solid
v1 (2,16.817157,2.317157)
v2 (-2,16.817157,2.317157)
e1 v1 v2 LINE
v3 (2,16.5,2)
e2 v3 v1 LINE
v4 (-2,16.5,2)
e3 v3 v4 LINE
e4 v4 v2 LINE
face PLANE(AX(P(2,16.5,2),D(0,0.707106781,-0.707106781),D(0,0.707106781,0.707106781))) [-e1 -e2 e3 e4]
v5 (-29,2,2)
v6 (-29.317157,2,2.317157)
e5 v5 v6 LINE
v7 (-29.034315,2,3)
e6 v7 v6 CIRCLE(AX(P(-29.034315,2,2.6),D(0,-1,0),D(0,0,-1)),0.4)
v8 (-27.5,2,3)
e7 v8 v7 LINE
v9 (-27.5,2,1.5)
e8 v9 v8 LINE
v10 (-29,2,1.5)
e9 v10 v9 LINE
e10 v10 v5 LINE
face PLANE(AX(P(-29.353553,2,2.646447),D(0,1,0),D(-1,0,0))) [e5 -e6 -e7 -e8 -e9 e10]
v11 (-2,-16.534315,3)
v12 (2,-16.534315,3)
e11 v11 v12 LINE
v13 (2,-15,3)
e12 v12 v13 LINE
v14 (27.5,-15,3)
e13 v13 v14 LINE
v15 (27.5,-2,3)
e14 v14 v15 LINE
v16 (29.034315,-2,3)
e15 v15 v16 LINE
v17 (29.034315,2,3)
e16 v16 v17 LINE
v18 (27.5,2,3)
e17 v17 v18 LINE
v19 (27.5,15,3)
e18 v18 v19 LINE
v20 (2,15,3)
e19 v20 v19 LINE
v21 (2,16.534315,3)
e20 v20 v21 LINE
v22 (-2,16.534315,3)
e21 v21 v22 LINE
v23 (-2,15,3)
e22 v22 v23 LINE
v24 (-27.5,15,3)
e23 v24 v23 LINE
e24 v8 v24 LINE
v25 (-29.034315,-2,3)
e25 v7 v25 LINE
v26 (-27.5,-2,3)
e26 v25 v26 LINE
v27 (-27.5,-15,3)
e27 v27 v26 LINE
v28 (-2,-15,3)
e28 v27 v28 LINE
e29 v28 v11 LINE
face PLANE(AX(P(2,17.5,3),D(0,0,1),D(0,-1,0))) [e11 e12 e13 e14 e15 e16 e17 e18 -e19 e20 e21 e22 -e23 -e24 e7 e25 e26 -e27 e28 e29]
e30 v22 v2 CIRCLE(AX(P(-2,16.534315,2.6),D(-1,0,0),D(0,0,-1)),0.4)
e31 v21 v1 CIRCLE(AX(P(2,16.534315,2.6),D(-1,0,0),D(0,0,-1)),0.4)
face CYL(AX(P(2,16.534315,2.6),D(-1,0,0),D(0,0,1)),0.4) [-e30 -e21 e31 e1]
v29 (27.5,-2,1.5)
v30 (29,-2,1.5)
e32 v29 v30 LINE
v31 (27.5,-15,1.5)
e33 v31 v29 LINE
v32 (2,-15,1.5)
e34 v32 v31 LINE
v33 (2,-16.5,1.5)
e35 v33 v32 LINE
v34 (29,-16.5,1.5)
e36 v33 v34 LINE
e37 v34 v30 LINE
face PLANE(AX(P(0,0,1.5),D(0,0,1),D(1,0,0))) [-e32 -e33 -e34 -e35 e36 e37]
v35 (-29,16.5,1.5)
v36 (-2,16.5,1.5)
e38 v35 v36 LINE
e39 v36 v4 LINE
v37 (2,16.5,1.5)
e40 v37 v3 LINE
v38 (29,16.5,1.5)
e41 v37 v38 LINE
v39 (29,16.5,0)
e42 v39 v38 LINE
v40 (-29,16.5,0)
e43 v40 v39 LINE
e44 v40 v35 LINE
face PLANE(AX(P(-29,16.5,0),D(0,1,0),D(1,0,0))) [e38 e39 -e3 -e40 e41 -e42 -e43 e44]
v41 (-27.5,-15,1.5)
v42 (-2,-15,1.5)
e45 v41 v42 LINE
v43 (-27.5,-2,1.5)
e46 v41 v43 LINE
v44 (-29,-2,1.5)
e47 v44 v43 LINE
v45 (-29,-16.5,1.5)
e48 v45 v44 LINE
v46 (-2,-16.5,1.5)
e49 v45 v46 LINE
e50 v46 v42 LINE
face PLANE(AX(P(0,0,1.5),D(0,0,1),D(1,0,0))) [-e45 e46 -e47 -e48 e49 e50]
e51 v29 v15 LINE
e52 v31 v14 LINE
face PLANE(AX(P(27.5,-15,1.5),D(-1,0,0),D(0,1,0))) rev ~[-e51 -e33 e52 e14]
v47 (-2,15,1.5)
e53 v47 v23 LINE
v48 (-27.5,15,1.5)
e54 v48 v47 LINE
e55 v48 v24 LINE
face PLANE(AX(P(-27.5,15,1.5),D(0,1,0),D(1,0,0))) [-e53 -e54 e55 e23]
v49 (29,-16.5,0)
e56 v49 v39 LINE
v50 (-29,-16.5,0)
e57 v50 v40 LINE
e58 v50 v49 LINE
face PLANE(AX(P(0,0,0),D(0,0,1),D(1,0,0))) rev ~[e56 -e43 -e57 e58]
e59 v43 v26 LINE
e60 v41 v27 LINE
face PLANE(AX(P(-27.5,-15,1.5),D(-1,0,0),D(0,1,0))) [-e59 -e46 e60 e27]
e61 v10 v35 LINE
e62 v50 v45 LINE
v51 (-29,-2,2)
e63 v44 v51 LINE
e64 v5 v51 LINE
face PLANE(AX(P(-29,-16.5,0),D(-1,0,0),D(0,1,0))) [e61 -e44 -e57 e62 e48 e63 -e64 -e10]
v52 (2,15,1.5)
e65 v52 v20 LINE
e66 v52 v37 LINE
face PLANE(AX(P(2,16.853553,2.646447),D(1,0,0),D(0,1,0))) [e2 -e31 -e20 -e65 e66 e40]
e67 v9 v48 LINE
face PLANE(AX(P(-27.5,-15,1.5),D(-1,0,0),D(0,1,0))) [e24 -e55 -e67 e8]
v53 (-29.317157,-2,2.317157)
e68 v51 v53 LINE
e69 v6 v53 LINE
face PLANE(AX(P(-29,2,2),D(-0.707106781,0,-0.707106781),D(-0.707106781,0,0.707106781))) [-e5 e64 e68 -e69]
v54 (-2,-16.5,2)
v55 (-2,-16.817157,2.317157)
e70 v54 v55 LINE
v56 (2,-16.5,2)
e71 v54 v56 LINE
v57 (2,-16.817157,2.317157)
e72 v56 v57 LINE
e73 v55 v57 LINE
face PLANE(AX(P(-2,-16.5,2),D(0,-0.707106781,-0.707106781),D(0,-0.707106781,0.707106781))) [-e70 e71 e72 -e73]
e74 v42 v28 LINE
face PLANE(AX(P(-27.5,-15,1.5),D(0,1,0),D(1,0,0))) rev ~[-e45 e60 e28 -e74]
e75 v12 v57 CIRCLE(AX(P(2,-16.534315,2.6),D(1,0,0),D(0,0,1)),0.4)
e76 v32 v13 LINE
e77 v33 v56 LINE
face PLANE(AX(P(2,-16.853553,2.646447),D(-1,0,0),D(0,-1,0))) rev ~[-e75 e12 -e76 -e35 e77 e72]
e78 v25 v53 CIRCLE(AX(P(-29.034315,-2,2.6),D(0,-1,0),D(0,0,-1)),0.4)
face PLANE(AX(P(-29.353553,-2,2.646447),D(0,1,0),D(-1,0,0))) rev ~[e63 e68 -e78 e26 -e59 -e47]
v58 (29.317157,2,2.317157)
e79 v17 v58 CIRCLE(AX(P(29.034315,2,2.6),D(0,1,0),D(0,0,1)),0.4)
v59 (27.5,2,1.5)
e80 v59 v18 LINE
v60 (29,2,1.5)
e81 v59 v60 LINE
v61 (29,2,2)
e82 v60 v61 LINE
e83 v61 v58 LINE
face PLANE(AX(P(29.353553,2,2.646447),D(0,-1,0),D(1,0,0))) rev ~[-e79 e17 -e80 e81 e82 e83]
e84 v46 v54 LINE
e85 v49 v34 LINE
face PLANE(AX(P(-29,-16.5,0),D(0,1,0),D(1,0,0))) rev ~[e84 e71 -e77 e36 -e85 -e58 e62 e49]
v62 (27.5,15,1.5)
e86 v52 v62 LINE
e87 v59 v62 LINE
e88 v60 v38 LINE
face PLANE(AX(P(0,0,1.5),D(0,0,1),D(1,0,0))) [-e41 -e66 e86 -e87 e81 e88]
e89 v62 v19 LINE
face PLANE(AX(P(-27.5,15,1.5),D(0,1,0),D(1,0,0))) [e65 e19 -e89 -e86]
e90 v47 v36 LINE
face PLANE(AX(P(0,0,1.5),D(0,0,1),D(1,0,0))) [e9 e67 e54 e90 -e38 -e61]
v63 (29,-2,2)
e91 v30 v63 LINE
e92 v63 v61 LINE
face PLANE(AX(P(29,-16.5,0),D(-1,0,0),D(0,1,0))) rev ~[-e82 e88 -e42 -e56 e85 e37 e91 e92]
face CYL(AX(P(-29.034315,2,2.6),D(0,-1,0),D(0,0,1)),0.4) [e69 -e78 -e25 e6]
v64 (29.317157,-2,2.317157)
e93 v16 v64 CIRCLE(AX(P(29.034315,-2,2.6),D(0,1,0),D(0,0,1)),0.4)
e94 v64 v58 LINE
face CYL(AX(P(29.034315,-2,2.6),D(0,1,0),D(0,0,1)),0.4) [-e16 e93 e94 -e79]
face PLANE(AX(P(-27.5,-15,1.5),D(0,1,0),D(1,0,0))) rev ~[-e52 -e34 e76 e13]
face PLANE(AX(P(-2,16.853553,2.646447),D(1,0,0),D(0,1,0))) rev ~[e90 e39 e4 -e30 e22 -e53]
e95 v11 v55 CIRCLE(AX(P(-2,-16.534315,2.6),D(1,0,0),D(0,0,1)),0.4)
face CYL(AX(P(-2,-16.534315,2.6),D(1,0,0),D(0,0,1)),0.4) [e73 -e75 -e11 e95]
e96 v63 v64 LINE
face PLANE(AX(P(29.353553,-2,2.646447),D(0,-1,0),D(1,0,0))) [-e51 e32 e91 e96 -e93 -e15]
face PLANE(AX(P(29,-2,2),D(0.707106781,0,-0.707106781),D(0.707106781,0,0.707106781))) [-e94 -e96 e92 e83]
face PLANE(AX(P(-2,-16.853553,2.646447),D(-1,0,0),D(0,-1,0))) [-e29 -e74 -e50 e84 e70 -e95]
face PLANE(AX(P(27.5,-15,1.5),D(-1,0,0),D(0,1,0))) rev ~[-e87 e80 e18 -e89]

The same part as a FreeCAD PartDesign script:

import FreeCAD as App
import Part
import Sketcher

V = App.Vector
Q = App.Units.Quantity


def edges_at(feature, points):
    """Names of the edges that pass closest to the given points."""
    edges = feature.Shape.Edges
    near = lambda p: min(range(len(edges)), key=lambda i: edges[i].distToShape(Part.Vertex(*p))[0])
    return sorted({f"Edge{near(p) + 1}" for p in points})


def add_polygon(sketch, points):
    """Adds a closed chain of lines whose ends are joined by coincident constraints."""
    first, n = sketch.GeometryCount, len(points)
    for a, b in zip(points, points[1:] + points[:1]):
        sketch.addGeometry(Part.LineSegment(App.Vector(*a, 0), App.Vector(*b, 0)), False)
    for i in range(n):
        sketch.addConstraint(Sketcher.Constraint("Coincident", first + i, 2, first + (i + 1) % n, 1))

doc = App.newDocument("Part")
body = doc.addObject("PartDesign::Body", "Body")

sketch1 = body.newObject("Sketcher::SketchObject", "Sketch")
sketch1.AttachmentSupport = (doc.getObject("XY_Plane"), [""])
sketch1.MapMode = "FlatFace"
add_polygon(sketch1, [(-29, 16.5), (-29, -16.5), (29, -16.5), (29, 16.5)])
sketch1.addConstraint(Sketcher.Constraint("Vertical", 0))
sketch1.addConstraint(Sketcher.Constraint("Horizontal", 1))
sketch1.addConstraint(Sketcher.Constraint("Vertical", 2))
sketch1.addConstraint(Sketcher.Constraint("Horizontal", 3))
sketch1.addConstraint(Sketcher.Constraint("Symmetric", 0, 2, 2, 2, -1, 1))
sketch1.addConstraint(Sketcher.Constraint("DistanceX", 1, 1, 1, 2, Q("58 mm")))
sketch1.addConstraint(Sketcher.Constraint("DistanceY", 0, 2, 0, 1, Q("33 mm")))
pad1 = body.newObject("PartDesign::Pad", "Pad")
pad1.Profile = sketch1
pad1.Length = 1.5

sketch2 = body.newObject("Sketcher::SketchObject", "Sketch001")
sketch2.AttachmentSupport = (doc.getObject("XY_Plane"), [""])
sketch2.MapMode = "FlatFace"
sketch2.AttachmentOffset = App.Placement(V(0, 0, 1.5), App.Rotation())
add_polygon(sketch2, [(-27.5, 15), (-27.5, -15), (27.5, -15), (27.5, 15)])
sketch2.addConstraint(Sketcher.Constraint("Vertical", 0))
sketch2.addConstraint(Sketcher.Constraint("Horizontal", 1))
sketch2.addConstraint(Sketcher.Constraint("Vertical", 2))
sketch2.addConstraint(Sketcher.Constraint("Horizontal", 3))
sketch2.addConstraint(Sketcher.Constraint("Symmetric", 0, 2, 2, 2, -1, 1))
sketch2.addConstraint(Sketcher.Constraint("DistanceX", 1, 1, 1, 2, Q("55 mm")))
sketch2.addConstraint(Sketcher.Constraint("DistanceY", 0, 2, 0, 1, Q("30 mm")))
pad2 = body.newObject("PartDesign::Pad", "Pad001")
pad2.Profile = sketch2
pad2.Length = 1.5

sketch3 = body.newObject("Sketcher::SketchObject", "Sketch002")
sketch3.AttachmentSupport = (doc.getObject("XY_Plane"), [""])
sketch3.MapMode = "FlatFace"
sketch3.AttachmentOffset = App.Placement(V(0, 0, 1.5), App.Rotation())
add_polygon(sketch3, [(-29, 2), (-29, -2), (-27.5, -2), (-27.5, 2)])
add_polygon(sketch3, [(-2, 16.5), (-2, 15), (2, 15), (2, 16.5)])
add_polygon(sketch3, [(27.5, 2), (27.5, -2), (29, -2), (29, 2)])
add_polygon(sketch3, [(-2, -15), (-2, -16.5), (2, -16.5), (2, -15)])
sketch3.addConstraint(Sketcher.Constraint("Vertical", 0))
sketch3.addConstraint(Sketcher.Constraint("Horizontal", 1))
sketch3.addConstraint(Sketcher.Constraint("Vertical", 2))
sketch3.addConstraint(Sketcher.Constraint("Horizontal", 3))
sketch3.addConstraint(Sketcher.Constraint("Vertical", 4))
sketch3.addConstraint(Sketcher.Constraint("Horizontal", 5))
sketch3.addConstraint(Sketcher.Constraint("Vertical", 6))
sketch3.addConstraint(Sketcher.Constraint("Horizontal", 7))
sketch3.addConstraint(Sketcher.Constraint("Vertical", 8))
sketch3.addConstraint(Sketcher.Constraint("Horizontal", 9))
sketch3.addConstraint(Sketcher.Constraint("Vertical", 10))
sketch3.addConstraint(Sketcher.Constraint("Horizontal", 11))
sketch3.addConstraint(Sketcher.Constraint("Vertical", 12))
sketch3.addConstraint(Sketcher.Constraint("Horizontal", 13))
sketch3.addConstraint(Sketcher.Constraint("Vertical", 14))
sketch3.addConstraint(Sketcher.Constraint("Horizontal", 15))
sketch3.addConstraint(Sketcher.Constraint("Symmetric", 2, 2, 8, 2, -1, 1))
sketch3.addConstraint(Sketcher.Constraint("Symmetric", 0, 2, 10, 2, -1, 1))
sketch3.addConstraint(Sketcher.Constraint("Symmetric", 6, 2, 12, 2, -1, 1))
sketch3.addConstraint(Sketcher.Constraint("Symmetric", 4, 2, 14, 2, -1, 1))
sketch3.addConstraint(Sketcher.Constraint("Horizontal", 1, 2, 8, 2))
sketch3.addConstraint(Sketcher.Constraint("Vertical", 7, 2, 12, 2))
sketch3.addConstraint(Sketcher.Constraint("Equal", 15, 0))
sketch3.addConstraint(Sketcher.Constraint("Equal", 11, 4))
sketch3.addConstraint(Sketcher.Constraint("DistanceX", 5, 1, 5, 2, Q("4 mm")))
sketch3.addConstraint(Sketcher.Constraint("DistanceX", 1, 1, 1, 2, Q("1.5 mm")))
sketch3.addConstraint(Sketcher.Constraint("DistanceX", 0, 2, -1, 1, Q("29 mm")))
sketch3.addConstraint(Sketcher.Constraint("DistanceY", -1, 1, 4, 2, Q("15 mm")))
pad3 = body.newObject("PartDesign::Pad", "Pad002")
pad3.Profile = sketch3
pad3.Length = 1.5

sketch4 = body.newObject("Sketcher::SketchObject", "Sketch003")
sketch4.AttachmentSupport = (doc.getObject("YZ_Plane"), [""])
sketch4.MapMode = "FlatFace"
sketch4.AttachmentOffset = App.Placement(V(0, 0, -2), App.Rotation())
add_polygon(sketch4, [(-17.5, 3), (-16.5, 3), (-16.5, 2)])
sketch4.addConstraint(Sketcher.Constraint("Horizontal", 0))
sketch4.addConstraint(Sketcher.Constraint("Vertical", 1))
sketch4.addConstraint(Sketcher.Constraint("Equal", 0, 1))
sketch4.addConstraint(Sketcher.Constraint("DistanceX", 0, 1, 0, 2, Q("1 mm")))
sketch4.addConstraint(Sketcher.Constraint("DistanceY", -1, 1, 0, 2, Q("3 mm")))
sketch4.addConstraint(Sketcher.Constraint("DistanceX", 0, 2, -1, 1, Q("16.5 mm")))
pad4 = body.newObject("PartDesign::Pad", "Pad003")
pad4.Profile = sketch4
pad4.Length = 4

sketch5 = body.newObject("Sketcher::SketchObject", "Sketch004")
sketch5.AttachmentSupport = (doc.getObject("XZ_Plane"), [""])
sketch5.MapMode = "FlatFace"
sketch5.AttachmentOffset = App.Placement(V(0, 0, -2), App.Rotation())
add_polygon(sketch5, [(-30, 3), (-29, 3), (-29, 2)])
sketch5.addConstraint(Sketcher.Constraint("Horizontal", 0))
sketch5.addConstraint(Sketcher.Constraint("Vertical", 1))
sketch5.addConstraint(Sketcher.Constraint("Equal", 0, 1))
sketch5.addConstraint(Sketcher.Constraint("DistanceX", 0, 1, 0, 2, Q("1 mm")))
sketch5.addConstraint(Sketcher.Constraint("DistanceX", 0, 2, -1, 1, Q("29 mm")))
sketch5.addConstraint(Sketcher.Constraint("DistanceY", -1, 1, 0, 2, Q("3 mm")))
pad5 = body.newObject("PartDesign::Pad", "Pad004")
pad5.Profile = sketch5
pad5.Length = 4

sketch6 = body.newObject("Sketcher::SketchObject", "Sketch005")
sketch6.AttachmentSupport = (doc.getObject("XZ_Plane"), [""])
sketch6.MapMode = "FlatFace"
sketch6.AttachmentOffset = App.Placement(V(0, 0, 2), App.Rotation())
add_polygon(sketch6, [(30, 3), (29, 3), (29, 2)])
sketch6.addConstraint(Sketcher.Constraint("Horizontal", 0))
sketch6.addConstraint(Sketcher.Constraint("Vertical", 1))
sketch6.addConstraint(Sketcher.Constraint("Equal", 0, 1))
sketch6.addConstraint(Sketcher.Constraint("DistanceX", 0, 2, 0, 1, Q("1 mm")))
sketch6.addConstraint(Sketcher.Constraint("DistanceX", -1, 1, 0, 2, Q("29 mm")))
sketch6.addConstraint(Sketcher.Constraint("DistanceY", -1, 1, 0, 2, Q("3 mm")))
pad6 = body.newObject("PartDesign::Pad", "Pad005")
pad6.Profile = sketch6
pad6.Length = 4
pad6.Reversed = True

sketch7 = body.newObject("Sketcher::SketchObject", "Sketch006")
sketch7.AttachmentSupport = (doc.getObject("YZ_Plane"), [""])
sketch7.MapMode = "FlatFace"
sketch7.AttachmentOffset = App.Placement(V(0, 0, 2), App.Rotation())
add_polygon(sketch7, [(17.5, 3), (16.5, 3), (16.5, 2)])
sketch7.addConstraint(Sketcher.Constraint("Horizontal", 0))
sketch7.addConstraint(Sketcher.Constraint("Vertical", 1))
sketch7.addConstraint(Sketcher.Constraint("Equal", 0, 1))
sketch7.addConstraint(Sketcher.Constraint("DistanceX", 0, 2, 0, 1, Q("1 mm")))
sketch7.addConstraint(Sketcher.Constraint("DistanceY", -1, 1, 0, 2, Q("3 mm")))
sketch7.addConstraint(Sketcher.Constraint("DistanceX", -1, 1, 0, 2, Q("16.5 mm")))
pad7 = body.newObject("PartDesign::Pad", "Pad006")
pad7.Profile = sketch7
pad7.Length = 4
pad7.Reversed = True
doc.recompute()

fillet = body.newObject("PartDesign::Fillet", "Fillet")
fillet.Base = (pad7, edges_at(pad7, [
    (-30, 0, 3),
    (0, 17.5, 3),
    (30, 0, 3),
    (0, -17.5, 3),
]))
fillet.Radius = 0.4

doc.recompute()
